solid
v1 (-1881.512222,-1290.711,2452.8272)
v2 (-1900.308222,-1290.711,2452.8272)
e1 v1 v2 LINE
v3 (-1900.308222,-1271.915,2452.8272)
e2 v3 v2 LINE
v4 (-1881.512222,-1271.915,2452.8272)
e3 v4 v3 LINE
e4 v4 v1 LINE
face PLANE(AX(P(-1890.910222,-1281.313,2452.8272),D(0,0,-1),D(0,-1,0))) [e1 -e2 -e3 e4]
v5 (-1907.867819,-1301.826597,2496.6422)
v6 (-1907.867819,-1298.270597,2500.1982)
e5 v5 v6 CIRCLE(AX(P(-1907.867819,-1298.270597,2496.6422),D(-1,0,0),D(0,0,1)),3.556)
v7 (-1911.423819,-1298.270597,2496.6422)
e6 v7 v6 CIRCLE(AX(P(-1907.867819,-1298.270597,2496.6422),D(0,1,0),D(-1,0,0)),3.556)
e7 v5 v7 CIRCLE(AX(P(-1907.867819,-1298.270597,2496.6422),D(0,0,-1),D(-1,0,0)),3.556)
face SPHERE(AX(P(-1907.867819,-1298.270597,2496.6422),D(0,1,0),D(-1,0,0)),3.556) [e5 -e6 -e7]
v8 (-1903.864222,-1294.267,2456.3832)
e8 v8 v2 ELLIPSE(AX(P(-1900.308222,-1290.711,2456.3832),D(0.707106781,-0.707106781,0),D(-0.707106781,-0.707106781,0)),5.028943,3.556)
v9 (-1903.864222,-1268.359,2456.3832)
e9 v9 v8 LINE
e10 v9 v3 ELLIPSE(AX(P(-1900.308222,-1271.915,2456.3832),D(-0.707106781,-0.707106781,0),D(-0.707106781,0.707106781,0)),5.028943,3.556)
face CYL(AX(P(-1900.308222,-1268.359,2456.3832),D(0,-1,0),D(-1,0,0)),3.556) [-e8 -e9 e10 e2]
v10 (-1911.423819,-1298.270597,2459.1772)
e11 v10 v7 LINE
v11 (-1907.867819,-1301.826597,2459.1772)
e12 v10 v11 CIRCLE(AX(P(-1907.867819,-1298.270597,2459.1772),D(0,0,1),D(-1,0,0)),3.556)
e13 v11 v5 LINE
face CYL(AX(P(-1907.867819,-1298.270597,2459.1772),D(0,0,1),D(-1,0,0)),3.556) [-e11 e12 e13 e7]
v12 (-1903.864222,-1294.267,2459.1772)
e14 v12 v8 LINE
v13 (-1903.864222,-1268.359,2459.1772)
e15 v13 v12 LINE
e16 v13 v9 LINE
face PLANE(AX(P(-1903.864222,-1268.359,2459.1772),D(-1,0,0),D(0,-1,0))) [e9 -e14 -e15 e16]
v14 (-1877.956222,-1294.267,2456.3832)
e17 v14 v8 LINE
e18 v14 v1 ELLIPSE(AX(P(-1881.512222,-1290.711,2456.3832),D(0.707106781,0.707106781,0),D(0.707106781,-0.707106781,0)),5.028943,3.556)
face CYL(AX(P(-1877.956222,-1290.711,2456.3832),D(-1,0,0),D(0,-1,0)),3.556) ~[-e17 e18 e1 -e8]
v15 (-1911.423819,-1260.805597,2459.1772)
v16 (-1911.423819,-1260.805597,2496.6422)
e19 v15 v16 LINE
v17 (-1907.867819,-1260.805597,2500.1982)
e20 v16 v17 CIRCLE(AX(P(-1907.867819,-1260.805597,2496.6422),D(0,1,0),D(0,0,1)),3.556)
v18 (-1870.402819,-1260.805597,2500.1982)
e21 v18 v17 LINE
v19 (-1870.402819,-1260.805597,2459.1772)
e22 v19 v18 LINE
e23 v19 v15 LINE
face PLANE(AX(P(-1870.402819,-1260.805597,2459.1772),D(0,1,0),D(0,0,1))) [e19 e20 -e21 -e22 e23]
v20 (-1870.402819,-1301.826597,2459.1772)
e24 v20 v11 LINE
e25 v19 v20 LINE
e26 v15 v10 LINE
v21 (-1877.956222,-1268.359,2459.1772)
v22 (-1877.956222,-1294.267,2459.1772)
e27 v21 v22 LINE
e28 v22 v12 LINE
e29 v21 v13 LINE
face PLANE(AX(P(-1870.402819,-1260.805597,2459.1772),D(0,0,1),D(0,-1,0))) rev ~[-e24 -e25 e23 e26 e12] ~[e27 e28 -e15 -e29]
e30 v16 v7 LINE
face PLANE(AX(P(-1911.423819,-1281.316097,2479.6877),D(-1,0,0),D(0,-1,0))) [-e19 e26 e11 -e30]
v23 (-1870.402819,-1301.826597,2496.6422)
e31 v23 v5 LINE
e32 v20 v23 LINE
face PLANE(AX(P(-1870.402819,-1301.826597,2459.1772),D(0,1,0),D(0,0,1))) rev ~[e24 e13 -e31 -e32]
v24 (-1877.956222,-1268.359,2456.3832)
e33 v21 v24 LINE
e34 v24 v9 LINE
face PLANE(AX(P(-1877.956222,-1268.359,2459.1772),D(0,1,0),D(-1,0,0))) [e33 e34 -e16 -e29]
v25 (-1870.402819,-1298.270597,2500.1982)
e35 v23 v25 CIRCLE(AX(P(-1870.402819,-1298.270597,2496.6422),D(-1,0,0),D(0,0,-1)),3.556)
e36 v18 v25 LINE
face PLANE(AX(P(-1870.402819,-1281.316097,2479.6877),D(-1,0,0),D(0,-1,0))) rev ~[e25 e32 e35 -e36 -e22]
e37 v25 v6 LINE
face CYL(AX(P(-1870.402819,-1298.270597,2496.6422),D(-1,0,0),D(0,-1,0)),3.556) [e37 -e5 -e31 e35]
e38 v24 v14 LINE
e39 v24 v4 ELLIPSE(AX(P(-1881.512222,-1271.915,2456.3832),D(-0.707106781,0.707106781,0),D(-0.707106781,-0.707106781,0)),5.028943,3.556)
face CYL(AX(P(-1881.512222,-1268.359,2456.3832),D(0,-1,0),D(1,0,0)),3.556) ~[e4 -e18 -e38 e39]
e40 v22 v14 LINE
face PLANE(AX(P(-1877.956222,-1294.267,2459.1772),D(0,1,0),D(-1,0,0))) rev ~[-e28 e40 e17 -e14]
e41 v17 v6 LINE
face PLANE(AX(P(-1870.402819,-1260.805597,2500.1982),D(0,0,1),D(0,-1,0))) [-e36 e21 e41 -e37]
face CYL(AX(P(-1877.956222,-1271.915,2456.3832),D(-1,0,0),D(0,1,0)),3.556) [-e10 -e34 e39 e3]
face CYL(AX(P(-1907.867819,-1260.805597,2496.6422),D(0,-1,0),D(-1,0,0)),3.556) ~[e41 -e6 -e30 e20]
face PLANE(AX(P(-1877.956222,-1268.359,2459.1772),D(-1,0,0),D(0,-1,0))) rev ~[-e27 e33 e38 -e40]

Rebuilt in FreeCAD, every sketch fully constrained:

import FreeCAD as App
import Part
import Sketcher
from FreeCAD import Vector
Q = App.Units.Quantity


def edges_at(feature, points):
    """Names of the edges that pass closest to the given points."""
    edges = feature.Shape.Edges
    near = lambda p: min(range(len(edges)), key=lambda i: edges[i].distToShape(Part.Vertex(*p))[0])
    return sorted({f"Edge{near(p) + 1}" for p in points})

doc = App.newDocument("Part")
params = doc.addObject("Spreadsheet::Sheet", "Params")
for row, (alias, value) in enumerate([
    ("sketch1_width", "1.615 in"),
    ("pad1_length", "1.615 in"),
    ("sketch2_width", "1.02 in"),
    ("pad2_length", "0.25 in"),
    ("fillet_radius", "0.14 in"),
    ("fillet2_radius", "0.14 in"),
], start=1):
    params.set(f"A{row}", alias)
    params.set(f"B{row}", "=" + value)
    params.setAlias(f"B{row}", alias)

body = doc.addObject("PartDesign::Body", "Body")

sketch1 = body.newObject("Sketcher::SketchObject", "Sketch")
sketch1.AttachmentSupport = (doc.getObject("XZ_Plane"), [""])
sketch1.MapMode = "FlatFace"
sketch1.addGeometry([
    Part.LineSegment(Vector(0, 41.021, 0), Vector(0, 0, 0)),
    Part.LineSegment(Vector(0, 0, 0), Vector(41.021, 0, 0)),
    Part.LineSegment(Vector(41.021, 0, 0), Vector(41.021, 41.021, 0)),
    Part.LineSegment(Vector(41.021, 41.021, 0), Vector(0, 41.021, 0)),
], False)
sketch1.addConstraint([
    Sketcher.Constraint("Coincident", 0, 2, 1, 1),
    Sketcher.Constraint("Coincident", 1, 2, 2, 1),
    Sketcher.Constraint("Coincident", 2, 2, 3, 1),
    Sketcher.Constraint("Coincident", 3, 2, 0, 1),
    Sketcher.Constraint("Vertical", 0),
    Sketcher.Constraint("Horizontal", 1),
    Sketcher.Constraint("Vertical", 2),
    Sketcher.Constraint("Horizontal", 3),
    Sketcher.Constraint("Coincident", 0, 2, -1, 1),
    Sketcher.Constraint("Equal", 3, 0),
    Sketcher.Constraint("DistanceX", 1, 1, 1, 2, Q("1.615 in")),
])
sketch1.setExpression("Constraints[10]", "Params.sketch1_width")
pad1 = body.newObject("PartDesign::Pad", "Pad")
pad1.Profile = sketch1
pad1.setExpression("Length", "Params.pad1_length")

sketch2 = body.newObject("Sketcher::SketchObject", "Sketch001")
sketch2.AttachmentSupport = (doc.getObject("XY_Plane"), [""])
sketch2.MapMode = "FlatFace"
sketch2.addGeometry([
    Part.LineSegment(Vector(7.553403, -33.461403, 0), Vector(7.553403, -7.553403, 0)),
    Part.LineSegment(Vector(7.553403, -7.553403, 0), Vector(33.461403, -7.553403, 0)),
    Part.LineSegment(Vector(33.461403, -7.553403, 0), Vector(33.461403, -33.461403, 0)),
    Part.LineSegment(Vector(33.461403, -33.461403, 0), Vector(7.553403, -33.461403, 0)),
], False)
sketch2.addConstraint([
    Sketcher.Constraint("Coincident", 0, 2, 1, 1),
    Sketcher.Constraint("Coincident", 1, 2, 2, 1),
    Sketcher.Constraint("Coincident", 2, 2, 3, 1),
    Sketcher.Constraint("Coincident", 3, 2, 0, 1),
    Sketcher.Constraint("Vertical", 0),
    Sketcher.Constraint("Horizontal", 1),
    Sketcher.Constraint("Vertical", 2),
    Sketcher.Constraint("Horizontal", 3),
    Sketcher.Constraint("Equal", 3, 0),
    Sketcher.Constraint("DistanceX", 1, 1, 1, 2, Q("1.02 in")),
    Sketcher.Constraint("DistanceX", -1, 1, 0, 2, Q("7.553403 mm")),
    Sketcher.Constraint("DistanceY", 0, 2, -1, 1, Q("7.553403 mm")),
])
sketch2.setExpression("Constraints[9]", "Params.sketch2_width")
pad2 = body.newObject("PartDesign::Pad", "Pad001")
pad2.Profile = sketch2
pad2.setExpression("Length", "Params.pad2_length")
pad2.Reversed = True
doc.recompute()

fillet = body.newObject("PartDesign::Fillet", "Fillet")
fillet.Base = (pad2, edges_at(pad2, [
    (7.553, -20.507, -6.35),
    (20.507, -33.461, -6.35),
    (20.507, -7.553, -6.35),
    (33.461, -20.507, -6.35),
]))
fillet.setExpression("Radius", "Params.fillet_radius")
doc.recompute()

fillet2 = body.newObject("PartDesign::Fillet", "Fillet001")
fillet2.Base = (fillet, edges_at(fillet, [(20.511, -41.021, 41.021), (41.021, -41.021, 20.511), (41.021, -20.511, 41.021)]))
fillet2.setExpression("Radius", "Params.fillet2_radius")
body2 = doc.addObject("PartDesign::Body", "Body001")
doc.recompute()

body.Placement = App.Placement(Vector(-1870.402819, -1260.805597, 2459.1772), App.Rotation(Vector(0, 0, 1), 270))
boolean = body2.newObject("PartDesign::Boolean", "Boolean")
boolean.Type = "Fuse"
boolean.addObjects([body])

doc.recompute()
